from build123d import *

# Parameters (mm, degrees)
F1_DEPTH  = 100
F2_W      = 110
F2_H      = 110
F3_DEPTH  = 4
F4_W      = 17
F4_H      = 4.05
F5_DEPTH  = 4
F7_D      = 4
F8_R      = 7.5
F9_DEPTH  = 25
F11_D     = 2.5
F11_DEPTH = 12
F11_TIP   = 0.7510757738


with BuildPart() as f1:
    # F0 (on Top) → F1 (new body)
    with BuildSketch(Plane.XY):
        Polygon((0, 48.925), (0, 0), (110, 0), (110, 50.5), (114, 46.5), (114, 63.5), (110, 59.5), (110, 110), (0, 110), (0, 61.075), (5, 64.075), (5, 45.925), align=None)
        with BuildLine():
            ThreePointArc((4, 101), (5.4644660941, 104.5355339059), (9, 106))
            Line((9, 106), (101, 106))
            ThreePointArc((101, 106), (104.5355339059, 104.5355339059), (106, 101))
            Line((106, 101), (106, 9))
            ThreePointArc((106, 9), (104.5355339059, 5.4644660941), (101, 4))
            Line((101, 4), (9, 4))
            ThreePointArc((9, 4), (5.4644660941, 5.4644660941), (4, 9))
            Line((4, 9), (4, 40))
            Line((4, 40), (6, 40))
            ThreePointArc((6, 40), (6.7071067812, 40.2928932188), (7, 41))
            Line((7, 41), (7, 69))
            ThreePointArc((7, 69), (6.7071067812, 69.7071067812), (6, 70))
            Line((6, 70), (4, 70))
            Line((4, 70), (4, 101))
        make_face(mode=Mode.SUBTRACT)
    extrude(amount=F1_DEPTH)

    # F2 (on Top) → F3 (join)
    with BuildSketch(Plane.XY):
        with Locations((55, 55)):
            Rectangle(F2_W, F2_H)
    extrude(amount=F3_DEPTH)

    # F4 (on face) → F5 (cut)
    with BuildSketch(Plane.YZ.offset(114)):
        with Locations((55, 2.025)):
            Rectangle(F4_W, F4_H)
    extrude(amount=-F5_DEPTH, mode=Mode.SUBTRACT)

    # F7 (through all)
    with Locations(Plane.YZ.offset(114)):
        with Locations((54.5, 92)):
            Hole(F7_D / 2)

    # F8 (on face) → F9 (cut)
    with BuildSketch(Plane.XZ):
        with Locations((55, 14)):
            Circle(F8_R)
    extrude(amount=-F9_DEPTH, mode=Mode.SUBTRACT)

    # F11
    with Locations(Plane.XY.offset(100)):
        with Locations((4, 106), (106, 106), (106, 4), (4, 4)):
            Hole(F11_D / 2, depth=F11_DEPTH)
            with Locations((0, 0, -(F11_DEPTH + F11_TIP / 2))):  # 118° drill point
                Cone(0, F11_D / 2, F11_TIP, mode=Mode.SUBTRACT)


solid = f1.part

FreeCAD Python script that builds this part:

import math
import FreeCAD as App
import Part
import Sketcher

V = App.Vector


def add_polygon(sketch, points):
    """Adds a closed chain of lines whose ends are joined by coincident constraints."""
    first, n = sketch.GeometryCount, len(points)
    for a, b in zip(points, points[1:] + points[:1]):
        sketch.addGeometry(Part.LineSegment(App.Vector(*a, 0), App.Vector(*b, 0)), False)
    for i in range(n):
        sketch.addConstraint(Sketcher.Constraint("Coincident", first + i, 2, first + (i + 1) % n, 1))

doc = App.newDocument("Part")
body = doc.addObject("PartDesign::Body", "Body")

sketch1 = body.newObject("Sketcher::SketchObject", "Sketch")
sketch1.AttachmentSupport = (doc.getObject("XY_Plane"), [""])
sketch1.MapMode = "FlatFace"
add_polygon(sketch1, [(0, 48.925), (0, 0), (110, 0), (110, 50.5), (114, 46.5), (114, 63.5), (110, 59.5), (110, 110), (0, 110), (0, 61.075), (5, 64.075), (5, 45.925)])
sketch1.addGeometry(Part.LineSegment(V(4, 70, 0), V(4, 101, 0)), False)
sketch1.addGeometry(Part.ArcOfCircle(Part.Circle(V(9, 101, 0), V(0, 0, 1), 5), math.radians(90), math.radians(180)), False)
sketch1.addGeometry(Part.LineSegment(V(9, 106, 0), V(101, 106, 0)), False)
sketch1.addGeometry(Part.ArcOfCircle(Part.Circle(V(101, 101, 0), V(0, 0, 1), 5), math.radians(0), math.radians(90)), False)
sketch1.addGeometry(Part.LineSegment(V(106, 101, 0), V(106, 9, 0)), False)
sketch1.addGeometry(Part.ArcOfCircle(Part.Circle(V(101, 9, 0), V(0, 0, 1), 5), math.radians(-90), math.radians(0)), False)
sketch1.addGeometry(Part.LineSegment(V(101, 4, 0), V(9, 4, 0)), False)
sketch1.addGeometry(Part.ArcOfCircle(Part.Circle(V(9, 9, 0), V(0, 0, 1), 5), math.radians(180), math.radians(270)), False)
sketch1.addGeometry(Part.LineSegment(V(4, 9, 0), V(4, 40, 0)), False)
sketch1.addGeometry(Part.LineSegment(V(4, 40, 0), V(6, 40, 0)), False)
sketch1.addGeometry(Part.ArcOfCircle(Part.Circle(V(6, 41, 0), V(0, 0, 1), 1), math.radians(-90), math.radians(0)), False)
sketch1.addGeometry(Part.LineSegment(V(7, 41, 0), V(7, 69, 0)), False)
sketch1.addGeometry(Part.ArcOfCircle(Part.Circle(V(6, 69, 0), V(0, 0, 1), 1), math.radians(0), math.radians(90)), False)
sketch1.addGeometry(Part.LineSegment(V(6, 70, 0), V(4, 70, 0)), False)
sketch1.addConstraint([
    Sketcher.Constraint("Tangent", 12, 2, 13, 2),
    Sketcher.Constraint("Tangent", 13, 1, 14, 1),
    Sketcher.Constraint("Tangent", 14, 2, 15, 2),
    Sketcher.Constraint("Tangent", 15, 1, 16, 1),
    Sketcher.Constraint("Tangent", 16, 2, 17, 2),
    Sketcher.Constraint("Tangent", 17, 1, 18, 1),
    Sketcher.Constraint("Tangent", 18, 2, 19, 2),
    Sketcher.Constraint("Tangent", 19, 1, 20, 1),
    Sketcher.Constraint("Coincident", 20, 2, 21, 1),
    Sketcher.Constraint("Tangent", 21, 2, 22, 1),
    Sketcher.Constraint("Tangent", 22, 2, 23, 1),
    Sketcher.Constraint("Tangent", 23, 2, 24, 1),
    Sketcher.Constraint("Tangent", 24, 2, 25, 1),
    Sketcher.Constraint("Coincident", 25, 2, 12, 1),
    Sketcher.Constraint("Vertical", 0),
    Sketcher.Constraint("Horizontal", 1),
    Sketcher.Constraint("Vertical", 2),
    Sketcher.Constraint("Vertical", 4),
    Sketcher.Constraint("Vertical", 6),
    Sketcher.Constraint("Horizontal", 7),
    Sketcher.Constraint("Vertical", 8),
    Sketcher.Constraint("Vertical", 10),
    Sketcher.Constraint("Vertical", 12),
    Sketcher.Constraint("Horizontal", 14),
    Sketcher.Constraint("Vertical", 16),
    Sketcher.Constraint("Horizontal", 18),
    Sketcher.Constraint("Vertical", 20),
    Sketcher.Constraint("Horizontal", 21),
    Sketcher.Constraint("Vertical", 23),
    Sketcher.Constraint("Horizontal", 25),
    Sketcher.Constraint("Coincident", 0, 2, -1, 1),
    Sketcher.Constraint("Equal", 13, 15),
    Sketcher.Constraint("Equal", 15, 17),
    Sketcher.Constraint("Equal", 17, 19),
    Sketcher.Constraint("Equal", 22, 24),
    Sketcher.Constraint("PointOnObject", 7, 2, -2),
    Sketcher.Constraint("Perpendicular", 3, 5),
    Sketcher.Constraint("Vertical", 13, 3, 19, 3),
    Sketcher.Constraint("Vertical", 2, 2, 5, 2),
    Sketcher.Constraint("Equal", 2, 6),
    Sketcher.Constraint("Equal", 0, 8),
    Sketcher.Constraint("Equal", 18, 16),
    Sketcher.Constraint("Equal", 12, 20),
    Sketcher.Constraint("Equal", 3, 5),
    Sketcher.Constraint("Equal", 9, 11),
    Sketcher.Constraint("Radius", 13, 5.0),
    Sketcher.Constraint("Radius", 22, 1.0),
    Sketcher.Constraint("DistanceX", 1, 1, 1, 2, 110.0),
    Sketcher.Constraint("DistanceX", 14, 1, 14, 2, 92.0),
    Sketcher.Constraint("DistanceX", 21, 1, 21, 2, 2.0),
    Sketcher.Constraint("DistanceY", 4, 1, 4, 2, 17.0),
    Sketcher.Constraint("DistanceY", 12, 1, 12, 2, 31.0),
    Sketcher.Constraint("DistanceY", 2, 1, 2, 2, 50.5),
    Sketcher.Constraint("DistanceX", -1, 1, 13, 3, 9.0),
    Sketcher.Constraint("DistanceY", -1, 1, 13, 3, 101.0),
    Sketcher.Constraint("DistanceX", -1, 1, 3, 2, 114.0),
    Sketcher.Constraint("DistanceX", -1, 1, 9, 2, 5.0),
    Sketcher.Constraint("DistanceY", 8, 2, 9, 2, 3.0),
    Sketcher.Constraint("DistanceY", 10, 2, 10, 1, 18.15),
])
pad1 = body.newObject("PartDesign::Pad", "Pad")
pad1.Profile = sketch1
pad1.Length = 100

sketch2 = body.newObject("Sketcher::SketchObject", "Sketch001")
sketch2.AttachmentSupport = (doc.getObject("XY_Plane"), [""])
sketch2.MapMode = "FlatFace"
add_polygon(sketch2, [(0, 110), (0, 0), (110, 0), (110, 110)])
sketch2.addConstraint([
    Sketcher.Constraint("Vertical", 0),
    Sketcher.Constraint("Horizontal", 1),
    Sketcher.Constraint("Vertical", 2),
    Sketcher.Constraint("Horizontal", 3),
    Sketcher.Constraint("Coincident", 0, 2, -1, 1),
    Sketcher.Constraint("Equal", 3, 0),
    Sketcher.Constraint("DistanceX", 1, 1, 1, 2, 110.0),
])
pad2 = body.newObject("PartDesign::Pad", "Pad001")
pad2.Profile = sketch2
pad2.Length = 4

sketch3 = body.newObject("Sketcher::SketchObject", "Sketch002")
sketch3.AttachmentSupport = (doc.getObject("YZ_Plane"), [""])
sketch3.MapMode = "FlatFace"
sketch3.AttachmentOffset = App.Placement(V(0, 0, 114), App.Rotation())
add_polygon(sketch3, [(46.5, 4.05), (46.5, 0), (63.5, 0), (63.5, 4.05)])
sketch3.addConstraint([
    Sketcher.Constraint("Vertical", 0),
    Sketcher.Constraint("Horizontal", 1),
    Sketcher.Constraint("Vertical", 2),
    Sketcher.Constraint("Horizontal", 3),
    Sketcher.Constraint("PointOnObject", 0, 2, -1),
    Sketcher.Constraint("DistanceX", 1, 1, 1, 2, 17.0),
    Sketcher.Constraint("DistanceY", 0, 2, 0, 1, 4.05),
    Sketcher.Constraint("DistanceX", -1, 1, 0, 2, 46.5),
])
pocket1 = body.newObject("PartDesign::Pocket", "Pocket")
pocket1.Profile = sketch3
pocket1.Length = 4

sketch4 = body.newObject("Sketcher::SketchObject", "Sketch003")
sketch4.AttachmentSupport = (doc.getObject("YZ_Plane"), [""])
sketch4.MapMode = "FlatFace"
sketch4.AttachmentOffset = App.Placement(V(0, 0, 114), App.Rotation())
sketch4.addGeometry(Part.Circle(V(54.5, 92, 0), V(0, 0, 1), 2), False)
sketch4.addConstraint([
    Sketcher.Constraint("Diameter", 0, 4.0),
    Sketcher.Constraint("DistanceY", -1, 1, 0, 3, 92.0),
    Sketcher.Constraint("DistanceX", -1, 1, 0, 3, 54.5),
])
doc.recompute()
hole = body.newObject("PartDesign::Hole", "Hole")
hole.Profile = sketch4
hole.ThreadType = "None"
hole.Diameter = 4
hole.DepthType = "ThroughAll"

sketch5 = body.newObject("Sketcher::SketchObject", "Sketch004")
sketch5.AttachmentSupport = (doc.getObject("XZ_Plane"), [""])
sketch5.MapMode = "FlatFace"
sketch5.addGeometry(Part.Circle(V(55, 14, 0), V(0, 0, 1), 7.5), False)
sketch5.addConstraint([
    Sketcher.Constraint("Diameter", 0, 15.0),
    Sketcher.Constraint("DistanceX", -1, 1, 0, 3, 55.0),
    Sketcher.Constraint("DistanceY", -1, 1, 0, 3, 14.0),
])
pocket2 = body.newObject("PartDesign::Pocket", "Pocket001")
pocket2.Profile = sketch5
pocket2.Length = 25

sketch6 = body.newObject("Sketcher::SketchObject", "Sketch005")
sketch6.AttachmentSupport = (doc.getObject("XY_Plane"), [""])
sketch6.MapMode = "FlatFace"
sketch6.AttachmentOffset = App.Placement(V(0, 0, 100), App.Rotation())
sketch6.addGeometry([
    Part.Circle(V(4, 106, 0), V(0, 0, 1), 1.25),
    Part.Circle(V(106, 106, 0), V(0, 0, 1), 1.25),
    Part.Circle(V(106, 4, 0), V(0, 0, 1), 1.25),
    Part.Circle(V(4, 4, 0), V(0, 0, 1), 1.25),
], False)
sketch6.addConstraint([
    Sketcher.Constraint("Equal", 0, 1),
    Sketcher.Constraint("Equal", 1, 2),
    Sketcher.Constraint("Equal", 2, 3),
    Sketcher.Constraint("Horizontal", 0, 3, 1, 3),
    Sketcher.Constraint("Horizontal", 2, 3, 3, 3),
    Sketcher.Constraint("Vertical", 1, 3, 2, 3),
    Sketcher.Constraint("Vertical", 0, 3, 3, 3),
    Sketcher.Constraint("Diameter", 0, 2.5),
    Sketcher.Constraint("DistanceX", -1, 1, 0, 3, 4.0),
    Sketcher.Constraint("DistanceY", -1, 1, 0, 3, 106.0),
    Sketcher.Constraint("DistanceX", -1, 1, 1, 3, 106.0),
    Sketcher.Constraint("DistanceY", -1, 1, 2, 3, 4.0),
])
doc.recompute()
hole2 = body.newObject("PartDesign::Hole", "Hole001")
hole2.Profile = sketch6
hole2.ThreadType = "None"
hole2.Diameter = 2.5
hole2.DepthType = "Dimension"
hole2.Depth = 12
hole2.DrillPoint = "Angled"
hole2.DrillPointAngle = 118

doc.recompute()
